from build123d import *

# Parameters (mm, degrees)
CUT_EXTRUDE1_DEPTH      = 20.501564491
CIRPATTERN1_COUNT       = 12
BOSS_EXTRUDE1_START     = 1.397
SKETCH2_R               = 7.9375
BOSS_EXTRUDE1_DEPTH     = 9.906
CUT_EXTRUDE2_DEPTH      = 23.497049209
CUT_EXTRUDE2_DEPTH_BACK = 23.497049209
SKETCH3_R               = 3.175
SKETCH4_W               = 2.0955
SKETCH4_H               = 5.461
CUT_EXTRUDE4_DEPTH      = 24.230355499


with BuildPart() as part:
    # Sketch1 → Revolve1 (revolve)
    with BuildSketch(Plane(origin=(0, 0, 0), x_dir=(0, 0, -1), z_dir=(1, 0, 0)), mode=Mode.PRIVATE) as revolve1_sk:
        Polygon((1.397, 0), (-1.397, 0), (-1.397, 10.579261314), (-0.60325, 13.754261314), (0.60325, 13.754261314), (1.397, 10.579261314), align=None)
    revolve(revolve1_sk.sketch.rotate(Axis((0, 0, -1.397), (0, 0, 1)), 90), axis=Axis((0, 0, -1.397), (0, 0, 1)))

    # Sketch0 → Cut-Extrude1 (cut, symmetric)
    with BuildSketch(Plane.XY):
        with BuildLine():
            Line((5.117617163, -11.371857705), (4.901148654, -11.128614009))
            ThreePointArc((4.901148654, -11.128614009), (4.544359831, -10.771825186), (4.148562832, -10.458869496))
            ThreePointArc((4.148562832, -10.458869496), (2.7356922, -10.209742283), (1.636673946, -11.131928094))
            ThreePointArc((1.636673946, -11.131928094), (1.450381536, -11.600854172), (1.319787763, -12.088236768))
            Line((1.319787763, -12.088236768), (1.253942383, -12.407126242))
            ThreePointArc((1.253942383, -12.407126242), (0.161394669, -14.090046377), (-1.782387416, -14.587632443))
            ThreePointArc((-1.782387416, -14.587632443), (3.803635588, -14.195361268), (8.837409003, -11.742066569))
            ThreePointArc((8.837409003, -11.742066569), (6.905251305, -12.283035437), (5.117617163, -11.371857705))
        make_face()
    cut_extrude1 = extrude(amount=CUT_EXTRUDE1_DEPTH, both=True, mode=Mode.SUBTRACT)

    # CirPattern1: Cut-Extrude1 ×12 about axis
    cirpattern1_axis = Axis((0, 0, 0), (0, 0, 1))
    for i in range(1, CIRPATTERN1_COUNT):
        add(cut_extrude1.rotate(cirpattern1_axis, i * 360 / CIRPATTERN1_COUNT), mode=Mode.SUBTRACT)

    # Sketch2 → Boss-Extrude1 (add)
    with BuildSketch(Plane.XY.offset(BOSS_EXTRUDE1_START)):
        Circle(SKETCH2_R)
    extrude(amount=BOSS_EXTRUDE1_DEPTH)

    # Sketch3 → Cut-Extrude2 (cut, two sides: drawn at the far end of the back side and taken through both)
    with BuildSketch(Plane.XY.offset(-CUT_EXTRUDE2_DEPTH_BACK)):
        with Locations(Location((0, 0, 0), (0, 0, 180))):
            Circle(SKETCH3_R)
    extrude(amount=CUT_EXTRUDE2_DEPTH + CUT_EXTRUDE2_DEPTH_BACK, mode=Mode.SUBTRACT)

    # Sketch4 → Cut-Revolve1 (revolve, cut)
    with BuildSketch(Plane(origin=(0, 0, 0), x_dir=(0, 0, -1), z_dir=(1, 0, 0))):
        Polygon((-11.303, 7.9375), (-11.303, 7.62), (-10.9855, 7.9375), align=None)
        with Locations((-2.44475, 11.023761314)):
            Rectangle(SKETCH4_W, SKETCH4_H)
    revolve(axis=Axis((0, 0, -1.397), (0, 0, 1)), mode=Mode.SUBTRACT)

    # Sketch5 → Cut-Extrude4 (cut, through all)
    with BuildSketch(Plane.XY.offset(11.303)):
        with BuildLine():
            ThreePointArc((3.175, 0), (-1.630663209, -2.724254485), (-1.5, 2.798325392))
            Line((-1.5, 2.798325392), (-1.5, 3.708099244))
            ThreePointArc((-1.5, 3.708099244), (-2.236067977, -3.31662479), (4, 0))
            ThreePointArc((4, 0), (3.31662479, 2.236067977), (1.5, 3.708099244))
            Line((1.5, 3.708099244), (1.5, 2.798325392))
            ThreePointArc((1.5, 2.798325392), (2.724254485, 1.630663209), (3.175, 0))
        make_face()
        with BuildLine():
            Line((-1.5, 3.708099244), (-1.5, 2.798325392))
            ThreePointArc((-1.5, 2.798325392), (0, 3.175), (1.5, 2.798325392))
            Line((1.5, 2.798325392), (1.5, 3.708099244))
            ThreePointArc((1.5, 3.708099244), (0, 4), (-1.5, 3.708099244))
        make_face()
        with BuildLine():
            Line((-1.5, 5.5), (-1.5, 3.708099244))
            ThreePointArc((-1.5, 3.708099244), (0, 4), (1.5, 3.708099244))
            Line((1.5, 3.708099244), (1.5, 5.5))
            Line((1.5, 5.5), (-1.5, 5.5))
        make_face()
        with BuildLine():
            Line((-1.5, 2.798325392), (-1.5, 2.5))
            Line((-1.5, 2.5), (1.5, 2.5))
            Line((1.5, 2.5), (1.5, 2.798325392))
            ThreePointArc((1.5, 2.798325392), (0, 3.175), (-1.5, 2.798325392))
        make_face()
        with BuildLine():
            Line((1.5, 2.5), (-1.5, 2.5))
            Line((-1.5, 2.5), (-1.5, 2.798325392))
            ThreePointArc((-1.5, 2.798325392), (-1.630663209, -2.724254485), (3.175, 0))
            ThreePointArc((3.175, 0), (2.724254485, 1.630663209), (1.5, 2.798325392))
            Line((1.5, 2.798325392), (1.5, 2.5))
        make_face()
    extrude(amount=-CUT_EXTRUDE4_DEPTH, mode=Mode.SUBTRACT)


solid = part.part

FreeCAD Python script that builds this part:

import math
import FreeCAD as App
import Part
import Sketcher

V = App.Vector
Q = App.Units.Quantity


def add_polygon(sketch, points):
    """Adds a closed chain of lines whose ends are joined by coincident constraints."""
    first, n = sketch.GeometryCount, len(points)
    for a, b in zip(points, points[1:] + points[:1]):
        sketch.addGeometry(Part.LineSegment(App.Vector(*a, 0), App.Vector(*b, 0)), False)
    for i in range(n):
        sketch.addConstraint(Sketcher.Constraint("Coincident", first + i, 2, first + (i + 1) % n, 1))

doc = App.newDocument("Part")
params = doc.addObject("Spreadsheet::Sheet", "Params")
for row, (alias, value) in enumerate([
    ("sketch1_height", "0.11 in"),
    ("revolution_angle", "360 deg"),
    ("pocket1_length", "41.003129 mm"),
    ("sketch3_diameter", "0.625 in"),
    ("pad1_length", "0.39 in"),
    ("sketch4_diameter", "0.25 in"),
    ("sketch5_width", "0.215 in"),
    ("groove_angle", "360 deg"),
], start=1):
    params.set(f"A{row}", alias)
    params.set(f"B{row}", "=" + value)
    params.setAlias(f"B{row}", alias)

body = doc.addObject("PartDesign::Body", "Body")

sketch1 = body.newObject("Sketcher::SketchObject", "Sketch")
sketch1.AttachmentSupport = (doc.getObject("YZ_Plane"), [""])
sketch1.MapMode = "FlatFace"
add_polygon(sketch1, [(0, 1.4), (0, -1.4), (10.6, -1.4), (13.8, -0.6), (13.8, 0.6), (10.6, 1.4)])
sketch1.addConstraint(Sketcher.Constraint("Vertical", 0))
sketch1.addConstraint(Sketcher.Constraint("Horizontal", 1))
sketch1.addConstraint(Sketcher.Constraint("Vertical", 3))
sketch1.addConstraint(Sketcher.Constraint("Horizontal", 5))
sketch1.addConstraint(Sketcher.Constraint("Symmetric", 0, 2, 5, 2, -1, 1))
sketch1.addConstraint(Sketcher.Constraint("Vertical", 1, 2, 4, 2))
sketch1.addConstraint(Sketcher.Constraint("Equal", 2, 4))
sketch1.addConstraint(Sketcher.Constraint("DistanceY", 0, 2, 0, 1, Q("0.11 in")))
sketch1.addConstraint(Sketcher.Constraint("DistanceY", 3, 1, 3, 2, Q("0.0475 in")))
sketch1.addConstraint(Sketcher.Constraint("DistanceX", 1, 2, 2, 2, Q("0.125 in")))
sketch1.addConstraint(Sketcher.Constraint("DistanceX", 1, 1, 1, 2, 10.579261))
sketch1.setExpression("Constraints[13]", "Params.sketch1_height")
revolution = body.newObject("PartDesign::Revolution", "Revolution")
revolution.Profile = sketch1
revolution.ReferenceAxis = (sketch1, ["V_Axis"])
revolution.setExpression("Angle", "Params.revolution_angle")

sketch2 = body.newObject("Sketcher::SketchObject", "Sketch001")
sketch2.AttachmentSupport = (doc.getObject("XY_Plane"), [""])
sketch2.MapMode = "FlatFace"
sketch2.addGeometry(Part.LineSegment(V(5.12, -11.37, 0), V(4.9, -11.13, 0)), False)
sketch2.addGeometry(Part.ArcOfCircle(Part.Circle(V(1.66, -14.01, 0), V(0, 0, 1), 4.34), math.radians(41.67), math.radians(55)), False)
sketch2.addGeometry(Part.ArcOfCircle(Part.Circle(V(3.17, -11.85, 0), V(0, 0, 1), 1.7), math.radians(55), math.radians(155)), False)
sketch2.addGeometry(Part.ArcOfCircle(Part.Circle(V(5.57, -12.97, 0), V(0, 0, 1), 4.34), math.radians(155), math.radians(168.33)), False)
sketch2.addGeometry(Part.LineSegment(V(1.32, -12.09, 0), V(1.25, -12.41, 0)), False)
sketch2.addGeometry(Part.ArcOfCircle(Part.Circle(V(-1.45, -11.85, 0), V(0, 0, 1), 2.76), math.radians(-97), math.radians(-12)), False)
sketch2.addGeometry(Part.ArcOfCircle(Part.Circle(V(0, 0, 0), V(0, 0, 1), 14.7), math.radians(-97), math.radians(-53)), False)
sketch2.addGeometry(Part.ArcOfCircle(Part.Circle(V(7.18, -9.54, 0), V(0, 0, 1), 2.76), math.radians(-138), math.radians(-53)), False)
sketch2.addConstraint(Sketcher.Constraint("Tangent", 0, 2, 1, 1))
sketch2.addConstraint(Sketcher.Constraint("Tangent", 1, 2, 2, 1))
sketch2.addConstraint(Sketcher.Constraint("Tangent", 2, 2, 3, 1))
sketch2.addConstraint(Sketcher.Constraint("Tangent", 3, 2, 4, 1))
sketch2.addConstraint(Sketcher.Constraint("Tangent", 4, 2, 5, 2))
sketch2.addConstraint(Sketcher.Constraint("Tangent", 5, 1, 6, 1))
sketch2.addConstraint(Sketcher.Constraint("Tangent", 6, 2, 7, 2))
sketch2.addConstraint(Sketcher.Constraint("Tangent", 7, 1, 0, 1))
sketch2.addConstraint(Sketcher.Constraint("Coincident", 6, 3, -1, 1))
sketch2.addConstraint(Sketcher.Constraint("Equal", 1, 3))
sketch2.addConstraint(Sketcher.Constraint("Equal", 5, 7))
sketch2.addConstraint(Sketcher.Constraint("Horizontal", 2, 3, 5, 3))
sketch2.addConstraint(Sketcher.Constraint("Equal", 0, 4))
sketch2.addConstraint(Sketcher.Constraint("DistanceX", -1, 1, 2, 3, Q("0.125 in")))
sketch2.addConstraint(Sketcher.Constraint("DistanceX", 5, 3, -1, 1, Q("0.057 in")))
sketch2.addConstraint(Sketcher.Constraint("Radius", 6, 14.696119))
sketch2.addConstraint(Sketcher.Constraint("DistanceY", 2, 3, 7, 3, Q("0.091 in")))
sketch2.addConstraint(Sketcher.Constraint("Radius", 1, 4.338955))
sketch2.addConstraint(Sketcher.Constraint("Radius", 2, 1.697355))
sketch2.addConstraint(Sketcher.Constraint("Radius", 5, 2.758736))
sketch2.addConstraint(Sketcher.Constraint("DistanceX", 1, 2, 7, 3, 3.029899))
pocket1 = body.newObject("PartDesign::Pocket", "Pocket")
pocket1.Profile = sketch2
pocket1.setExpression("Length", "Params.pocket1_length")
pocket1.Midplane = True
doc.recompute()

polarpattern = body.newObject("PartDesign::PolarPattern", "PolarPattern")
polarpattern.Originals = [pocket1]
polarpattern.Axis = (doc.getObject("Z_Axis"), [""])
polarpattern.Angle = 360
polarpattern.Occurrences = 12
body.Tip = polarpattern

sketch3 = body.newObject("Sketcher::SketchObject", "Sketch002")
sketch3.AttachmentSupport = (doc.getObject("XY_Plane"), [""])
sketch3.MapMode = "FlatFace"
sketch3.AttachmentOffset = App.Placement(V(0, 0, 0.055 * 25.4), App.Rotation())
sketch3.addGeometry(Part.Circle(V(0, 0, 0), V(0, 0, 1), 8), False)
sketch3.addConstraint(Sketcher.Constraint("Coincident", 0, 3, -1, 1))
sketch3.addConstraint(Sketcher.Constraint("Diameter", 0, Q("0.625 in")))
sketch3.setExpression("Constraints[1]", "Params.sketch3_diameter")
pad1 = body.newObject("PartDesign::Pad", "Pad")
pad1.Profile = sketch3
pad1.setExpression("Length", "Params.pad1_length")

sketch4 = body.newObject("Sketcher::SketchObject", "Sketch003")
sketch4.AttachmentSupport = (doc.getObject("XY_Plane"), [""])
sketch4.MapMode = "FlatFace"
sketch4.addGeometry(Part.Circle(V(0, 0, 0), V(0, 0, 1), 3.2), False)
sketch4.addConstraint(Sketcher.Constraint("Coincident", 0, 3, -1, 1))
sketch4.addConstraint(Sketcher.Constraint("Diameter", 0, Q("0.25 in")))
sketch4.setExpression("Constraints[1]", "Params.sketch4_diameter")
pocket2 = body.newObject("PartDesign::Pocket", "Pocket001")
pocket2.Profile = sketch4
pocket2.Type = "ThroughAll"
pocket2.Midplane = True

sketch5 = body.newObject("Sketcher::SketchObject", "Sketch004")
sketch5.AttachmentSupport = (doc.getObject("YZ_Plane"), [""])
sketch5.MapMode = "FlatFace"
add_polygon(sketch5, [(7.94, 11.3), (7.62, 11.3), (7.94, 10.99)])
add_polygon(sketch5, [(13.75, 3.49), (8.29, 3.49), (8.29, 1.4), (13.75, 1.4)])
sketch5.addConstraint(Sketcher.Constraint("Horizontal", 0))
sketch5.addConstraint(Sketcher.Constraint("Vertical", 2))
sketch5.addConstraint(Sketcher.Constraint("Horizontal", 3))
sketch5.addConstraint(Sketcher.Constraint("Vertical", 4))
sketch5.addConstraint(Sketcher.Constraint("Horizontal", 5))
sketch5.addConstraint(Sketcher.Constraint("Vertical", 6))
sketch5.addConstraint(Sketcher.Constraint("Equal", 0, 2))
sketch5.addConstraint(Sketcher.Constraint("DistanceX", -1, 1, 0, 2, Q("0.3 in")))
sketch5.addConstraint(Sketcher.Constraint("DistanceX", 3, 2, 3, 1, Q("0.215 in")))
sketch5.addConstraint(Sketcher.Constraint("DistanceY", 4, 2, 2, 2, Q("0.39 in")))
sketch5.addConstraint(Sketcher.Constraint("DistanceX", 0, 2, 0, 1, Q("0.0125 in")))
sketch5.addConstraint(Sketcher.Constraint("DistanceY", 4, 2, 4, 1, Q("0.0825 in")))
sketch5.addConstraint(Sketcher.Constraint("DistanceY", -1, 1, 0, 2, Q("0.445 in")))
sketch5.addConstraint(Sketcher.Constraint("DistanceX", -1, 1, 3, 2, 8.293261))
sketch5.setExpression("Constraints[15]", "Params.sketch5_width")
groove = body.newObject("PartDesign::Groove", "Groove")
groove.Profile = sketch5
groove.ReferenceAxis = (sketch5, ["V_Axis"])
groove.setExpression("Angle", "Params.groove_angle")

sketch6 = body.newObject("Sketcher::SketchObject", "Sketch005")
sketch6.AttachmentSupport = (doc.getObject("XY_Plane"), [""])
sketch6.MapMode = "FlatFace"
sketch6.AttachmentOffset = App.Placement(V(0, 0, 0.445 * 25.4), App.Rotation())
sketch6.addGeometry(Part.ArcOfCircle(Part.Circle(V(0, 0, 0), V(0, 0, 1), 4), math.radians(0), math.radians(68)), False)
sketch6.addGeometry(Part.LineSegment(V(1.5, 3.7, 0), V(1.5, 5.5, 0)), False)
sketch6.addGeometry(Part.LineSegment(V(1.5, 5.5, 0), V(-1.5, 5.5, 0)), False)
sketch6.addGeometry(Part.LineSegment(V(-1.5, 5.5, 0), V(-1.5, 3.7, 0)), False)
sketch6.addGeometry(Part.ArcOfCircle(Part.Circle(V(0, 0, 0), V(0, 0, 1), 4), math.radians(112), math.radians(360)), False)
sketch6.addConstraint(Sketcher.Constraint("Coincident", 0, 2, 1, 1))
sketch6.addConstraint(Sketcher.Constraint("Coincident", 1, 2, 2, 1))
sketch6.addConstraint(Sketcher.Constraint("Coincident", 2, 2, 3, 1))
sketch6.addConstraint(Sketcher.Constraint("Coincident", 3, 2, 4, 1))
sketch6.addConstraint(Sketcher.Constraint("Tangent", 4, 2, 0, 1))
sketch6.addConstraint(Sketcher.Constraint("Vertical", 1))
sketch6.addConstraint(Sketcher.Constraint("Horizontal", 2))
sketch6.addConstraint(Sketcher.Constraint("Vertical", 3))
sketch6.addConstraint(Sketcher.Constraint("Coincident", 0, 3, -1, 1))
sketch6.addConstraint(Sketcher.Constraint("Equal", 0, 4))
sketch6.addConstraint(Sketcher.Constraint("PointOnObject", 4, 2, -1))
sketch6.addConstraint(Sketcher.Constraint("Horizontal", 0, 2, 3, 2))
sketch6.addConstraint(Sketcher.Constraint("Radius", 0, 4.0))
sketch6.addConstraint(Sketcher.Constraint("DistanceX", 2, 2, 2, 1, 3.0))
sketch6.addConstraint(Sketcher.Constraint("DistanceY", 1, 1, 1, 2, 1.791901))
pocket3 = body.newObject("PartDesign::Pocket", "Pocket002")
pocket3.Profile = sketch6
pocket3.Type = "ThroughAll"

doc.recompute()
